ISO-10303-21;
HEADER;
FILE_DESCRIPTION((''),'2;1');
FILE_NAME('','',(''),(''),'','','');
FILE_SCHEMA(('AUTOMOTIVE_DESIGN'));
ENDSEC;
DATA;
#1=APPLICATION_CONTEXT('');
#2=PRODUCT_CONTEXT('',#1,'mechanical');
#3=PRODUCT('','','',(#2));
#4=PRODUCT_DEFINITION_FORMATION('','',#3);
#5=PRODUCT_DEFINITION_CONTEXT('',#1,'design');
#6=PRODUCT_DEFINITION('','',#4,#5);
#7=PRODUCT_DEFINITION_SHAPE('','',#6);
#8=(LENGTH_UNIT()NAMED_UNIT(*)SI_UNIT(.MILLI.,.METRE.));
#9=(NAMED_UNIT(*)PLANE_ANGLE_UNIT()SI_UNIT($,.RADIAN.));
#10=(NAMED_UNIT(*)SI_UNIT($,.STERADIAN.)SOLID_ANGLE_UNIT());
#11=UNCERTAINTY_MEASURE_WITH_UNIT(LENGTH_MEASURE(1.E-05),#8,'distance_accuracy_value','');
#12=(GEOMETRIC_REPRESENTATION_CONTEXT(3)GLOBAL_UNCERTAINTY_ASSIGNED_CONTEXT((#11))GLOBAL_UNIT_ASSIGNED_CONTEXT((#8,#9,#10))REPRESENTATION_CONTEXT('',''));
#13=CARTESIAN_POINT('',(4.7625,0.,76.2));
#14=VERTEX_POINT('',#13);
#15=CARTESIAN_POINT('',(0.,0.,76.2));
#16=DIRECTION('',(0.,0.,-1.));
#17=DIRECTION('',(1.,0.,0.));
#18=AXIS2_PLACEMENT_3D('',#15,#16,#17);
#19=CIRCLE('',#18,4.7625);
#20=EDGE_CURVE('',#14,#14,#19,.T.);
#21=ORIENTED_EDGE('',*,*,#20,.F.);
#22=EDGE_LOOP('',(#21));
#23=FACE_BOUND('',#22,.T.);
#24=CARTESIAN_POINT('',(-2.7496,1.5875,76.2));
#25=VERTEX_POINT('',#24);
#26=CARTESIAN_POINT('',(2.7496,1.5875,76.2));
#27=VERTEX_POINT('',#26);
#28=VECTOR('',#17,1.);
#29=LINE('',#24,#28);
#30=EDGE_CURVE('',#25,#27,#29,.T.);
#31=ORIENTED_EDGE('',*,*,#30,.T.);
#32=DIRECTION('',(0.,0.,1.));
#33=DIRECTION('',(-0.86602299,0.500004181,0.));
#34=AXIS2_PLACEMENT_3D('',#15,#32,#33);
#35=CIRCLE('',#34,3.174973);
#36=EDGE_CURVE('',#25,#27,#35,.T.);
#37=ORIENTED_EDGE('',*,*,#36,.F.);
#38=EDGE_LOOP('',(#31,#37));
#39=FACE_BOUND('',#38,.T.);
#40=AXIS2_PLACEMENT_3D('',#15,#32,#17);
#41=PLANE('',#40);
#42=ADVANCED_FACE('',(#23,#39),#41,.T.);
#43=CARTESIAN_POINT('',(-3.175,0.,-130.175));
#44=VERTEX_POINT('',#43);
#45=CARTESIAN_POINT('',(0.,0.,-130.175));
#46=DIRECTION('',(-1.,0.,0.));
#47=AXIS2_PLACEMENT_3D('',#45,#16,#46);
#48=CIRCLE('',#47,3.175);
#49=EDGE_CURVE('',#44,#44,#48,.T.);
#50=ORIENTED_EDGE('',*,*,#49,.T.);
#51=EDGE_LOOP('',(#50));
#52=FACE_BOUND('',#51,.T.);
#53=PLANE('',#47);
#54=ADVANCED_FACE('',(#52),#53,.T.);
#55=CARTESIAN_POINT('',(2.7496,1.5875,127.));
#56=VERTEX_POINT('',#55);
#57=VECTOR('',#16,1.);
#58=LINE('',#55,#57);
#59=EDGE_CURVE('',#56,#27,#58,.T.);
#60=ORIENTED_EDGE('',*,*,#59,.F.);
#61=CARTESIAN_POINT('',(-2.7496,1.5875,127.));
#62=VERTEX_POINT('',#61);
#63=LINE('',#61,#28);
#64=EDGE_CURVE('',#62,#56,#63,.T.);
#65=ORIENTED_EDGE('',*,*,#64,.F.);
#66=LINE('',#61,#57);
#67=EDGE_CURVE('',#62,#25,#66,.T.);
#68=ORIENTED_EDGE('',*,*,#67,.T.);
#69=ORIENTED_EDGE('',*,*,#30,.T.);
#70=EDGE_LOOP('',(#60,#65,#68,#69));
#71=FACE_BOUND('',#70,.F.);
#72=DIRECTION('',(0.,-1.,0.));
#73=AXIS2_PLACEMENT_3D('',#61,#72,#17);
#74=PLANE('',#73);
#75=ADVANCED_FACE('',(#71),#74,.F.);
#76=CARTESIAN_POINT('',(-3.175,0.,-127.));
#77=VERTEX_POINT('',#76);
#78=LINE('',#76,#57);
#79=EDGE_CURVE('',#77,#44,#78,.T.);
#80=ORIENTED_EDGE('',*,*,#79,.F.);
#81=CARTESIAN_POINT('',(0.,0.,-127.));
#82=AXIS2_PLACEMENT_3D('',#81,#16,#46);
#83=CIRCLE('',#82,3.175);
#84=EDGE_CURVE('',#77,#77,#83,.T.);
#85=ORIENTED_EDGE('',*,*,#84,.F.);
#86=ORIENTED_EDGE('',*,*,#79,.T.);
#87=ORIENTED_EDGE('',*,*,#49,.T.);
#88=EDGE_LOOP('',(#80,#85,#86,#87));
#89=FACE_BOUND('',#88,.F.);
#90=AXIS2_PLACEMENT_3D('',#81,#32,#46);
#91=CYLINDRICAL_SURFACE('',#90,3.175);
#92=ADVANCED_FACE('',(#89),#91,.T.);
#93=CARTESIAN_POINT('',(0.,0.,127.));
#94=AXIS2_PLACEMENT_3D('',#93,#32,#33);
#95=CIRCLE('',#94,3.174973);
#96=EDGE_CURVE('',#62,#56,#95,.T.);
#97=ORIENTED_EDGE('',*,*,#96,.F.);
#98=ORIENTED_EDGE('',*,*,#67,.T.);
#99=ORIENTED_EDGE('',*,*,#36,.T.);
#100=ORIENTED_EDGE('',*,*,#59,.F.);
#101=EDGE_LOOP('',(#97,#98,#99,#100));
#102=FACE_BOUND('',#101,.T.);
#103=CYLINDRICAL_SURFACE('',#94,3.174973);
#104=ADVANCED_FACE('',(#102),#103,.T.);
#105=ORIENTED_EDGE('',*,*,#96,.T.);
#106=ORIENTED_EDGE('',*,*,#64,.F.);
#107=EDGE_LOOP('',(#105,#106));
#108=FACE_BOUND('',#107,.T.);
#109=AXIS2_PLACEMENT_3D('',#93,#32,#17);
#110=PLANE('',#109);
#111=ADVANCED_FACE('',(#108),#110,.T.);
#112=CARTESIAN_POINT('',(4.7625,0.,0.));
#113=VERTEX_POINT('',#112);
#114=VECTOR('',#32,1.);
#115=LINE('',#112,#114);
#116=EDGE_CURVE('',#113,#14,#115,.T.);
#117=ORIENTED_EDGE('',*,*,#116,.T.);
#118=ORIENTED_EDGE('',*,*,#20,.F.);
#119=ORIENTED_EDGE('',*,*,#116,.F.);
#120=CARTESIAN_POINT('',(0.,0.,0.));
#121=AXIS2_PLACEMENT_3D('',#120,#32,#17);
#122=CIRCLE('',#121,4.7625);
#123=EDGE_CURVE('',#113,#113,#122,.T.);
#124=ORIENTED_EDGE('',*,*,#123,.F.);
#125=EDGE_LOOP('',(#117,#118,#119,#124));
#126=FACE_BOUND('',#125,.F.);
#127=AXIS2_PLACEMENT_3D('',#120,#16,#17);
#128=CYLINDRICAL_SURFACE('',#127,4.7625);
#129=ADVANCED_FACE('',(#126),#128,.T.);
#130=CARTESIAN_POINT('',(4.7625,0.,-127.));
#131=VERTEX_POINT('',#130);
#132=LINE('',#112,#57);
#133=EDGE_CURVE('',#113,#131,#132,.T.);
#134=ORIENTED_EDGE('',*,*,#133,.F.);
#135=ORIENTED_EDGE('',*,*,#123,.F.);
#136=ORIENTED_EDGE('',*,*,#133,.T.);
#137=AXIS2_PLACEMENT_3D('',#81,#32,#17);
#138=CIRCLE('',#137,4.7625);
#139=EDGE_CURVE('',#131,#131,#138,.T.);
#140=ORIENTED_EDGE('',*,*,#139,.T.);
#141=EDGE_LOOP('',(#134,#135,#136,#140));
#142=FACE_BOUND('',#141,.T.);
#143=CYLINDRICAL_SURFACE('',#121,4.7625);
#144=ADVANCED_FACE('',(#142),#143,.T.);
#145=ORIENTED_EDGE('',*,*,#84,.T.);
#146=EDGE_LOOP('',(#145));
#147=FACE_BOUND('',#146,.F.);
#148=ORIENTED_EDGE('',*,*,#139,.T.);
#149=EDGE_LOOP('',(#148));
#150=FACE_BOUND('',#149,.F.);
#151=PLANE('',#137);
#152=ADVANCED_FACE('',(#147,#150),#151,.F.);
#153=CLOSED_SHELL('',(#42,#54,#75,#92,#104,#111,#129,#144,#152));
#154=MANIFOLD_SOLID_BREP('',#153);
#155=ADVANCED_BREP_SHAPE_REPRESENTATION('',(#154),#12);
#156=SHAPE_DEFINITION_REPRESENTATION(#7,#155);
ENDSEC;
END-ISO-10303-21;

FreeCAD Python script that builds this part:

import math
import FreeCAD as App
import Part
import Sketcher
from FreeCAD import Vector
Q = App.Units.Quantity

doc = App.newDocument("Part")
body = doc.addObject("PartDesign::Body", "Body")

sketch1 = body.newObject("Sketcher::SketchObject", "Sketch")
sketch1.AttachmentSupport = (doc.getObject("XY_Plane"), [""])
sketch1.MapMode = "FlatFace"
sketch1.addGeometry(Part.Circle(Vector(0, 0, 0), Vector(0, 0, 1), 4.7625), False)
sketch1.addConstraint(Sketcher.Constraint("Coincident", 0, 3, -1, 1))
sketch1.addConstraint(Sketcher.Constraint("Diameter", 0, Q("0.375 in")))
pad1 = body.newObject("PartDesign::Pad", "Pad")
pad1.Profile = sketch1
pad1.Length = Q("10 in")
pad1.Midplane = True

sketch2 = body.newObject("Sketcher::SketchObject", "Sketch001")
sketch2.AttachmentSupport = (doc.getObject("XY_Plane"), [""])
sketch2.MapMode = "FlatFace"
sketch2.AttachmentOffset = App.Placement(Vector(0, 0, 5 * 25.4), App.Rotation())
sketch2.addGeometry(Part.Circle(Vector(0, 0, 0), Vector(0, 0, 1), 8.1081), False)
sketch2.addGeometry(Part.ArcOfCircle(Part.Circle(Vector(0, 0, 0), Vector(0, 0, 1), 3.174973), math.radians(149.999723), math.radians(390.000277)), False)
sketch2.addGeometry(Part.LineSegment(Vector(-2.7496, 1.5875, 0), Vector(2.7496, 1.5875, 0)), False)
sketch2.addConstraint(Sketcher.Constraint("Coincident", 1, 1, 2, 1))
sketch2.addConstraint(Sketcher.Constraint("Coincident", 2, 2, 1, 2))
sketch2.addConstraint(Sketcher.Constraint("Horizontal", 2))
sketch2.addConstraint(Sketcher.Constraint("Coincident", 0, 3, -1, 1))
sketch2.addConstraint(Sketcher.Constraint("Coincident", 1, 3, -1, 1))
sketch2.addConstraint(Sketcher.Constraint("Radius", 1, Q("0.125 in")))
sketch2.addConstraint(Sketcher.Constraint("DistanceY", -1, 1, 1, 1, Q("0.0625 in")))
sketch2.addConstraint(Sketcher.Constraint("Diameter", 0, Q("16.2162 mm")))
pocket1 = body.newObject("PartDesign::Pocket", "Pocket")
pocket1.Profile = sketch2
pocket1.Length = Q("2 in")

sketch3 = body.newObject("Sketcher::SketchObject", "Sketch002")
sketch3.AttachmentSupport = (doc.getObject("XY_Plane"), [""])
sketch3.MapMode = "FlatFace"
sketch3.AttachmentOffset = App.Placement(Vector(0, 0, -5 * 25.4), App.Rotation())
sketch3.addGeometry(Part.Circle(Vector(0, 0, 0), Vector(0, 0, 1), 3.175), False)
sketch3.addConstraint(Sketcher.Constraint("Coincident", 0, 3, -1, 1))
sketch3.addConstraint(Sketcher.Constraint("Diameter", 0, Q("0.25 in")))
pad2 = body.newObject("PartDesign::Pad", "Pad001")
pad2.Profile = sketch3
pad2.Length = Q("0.125 in")
pad2.Reversed = True

doc.recompute()
